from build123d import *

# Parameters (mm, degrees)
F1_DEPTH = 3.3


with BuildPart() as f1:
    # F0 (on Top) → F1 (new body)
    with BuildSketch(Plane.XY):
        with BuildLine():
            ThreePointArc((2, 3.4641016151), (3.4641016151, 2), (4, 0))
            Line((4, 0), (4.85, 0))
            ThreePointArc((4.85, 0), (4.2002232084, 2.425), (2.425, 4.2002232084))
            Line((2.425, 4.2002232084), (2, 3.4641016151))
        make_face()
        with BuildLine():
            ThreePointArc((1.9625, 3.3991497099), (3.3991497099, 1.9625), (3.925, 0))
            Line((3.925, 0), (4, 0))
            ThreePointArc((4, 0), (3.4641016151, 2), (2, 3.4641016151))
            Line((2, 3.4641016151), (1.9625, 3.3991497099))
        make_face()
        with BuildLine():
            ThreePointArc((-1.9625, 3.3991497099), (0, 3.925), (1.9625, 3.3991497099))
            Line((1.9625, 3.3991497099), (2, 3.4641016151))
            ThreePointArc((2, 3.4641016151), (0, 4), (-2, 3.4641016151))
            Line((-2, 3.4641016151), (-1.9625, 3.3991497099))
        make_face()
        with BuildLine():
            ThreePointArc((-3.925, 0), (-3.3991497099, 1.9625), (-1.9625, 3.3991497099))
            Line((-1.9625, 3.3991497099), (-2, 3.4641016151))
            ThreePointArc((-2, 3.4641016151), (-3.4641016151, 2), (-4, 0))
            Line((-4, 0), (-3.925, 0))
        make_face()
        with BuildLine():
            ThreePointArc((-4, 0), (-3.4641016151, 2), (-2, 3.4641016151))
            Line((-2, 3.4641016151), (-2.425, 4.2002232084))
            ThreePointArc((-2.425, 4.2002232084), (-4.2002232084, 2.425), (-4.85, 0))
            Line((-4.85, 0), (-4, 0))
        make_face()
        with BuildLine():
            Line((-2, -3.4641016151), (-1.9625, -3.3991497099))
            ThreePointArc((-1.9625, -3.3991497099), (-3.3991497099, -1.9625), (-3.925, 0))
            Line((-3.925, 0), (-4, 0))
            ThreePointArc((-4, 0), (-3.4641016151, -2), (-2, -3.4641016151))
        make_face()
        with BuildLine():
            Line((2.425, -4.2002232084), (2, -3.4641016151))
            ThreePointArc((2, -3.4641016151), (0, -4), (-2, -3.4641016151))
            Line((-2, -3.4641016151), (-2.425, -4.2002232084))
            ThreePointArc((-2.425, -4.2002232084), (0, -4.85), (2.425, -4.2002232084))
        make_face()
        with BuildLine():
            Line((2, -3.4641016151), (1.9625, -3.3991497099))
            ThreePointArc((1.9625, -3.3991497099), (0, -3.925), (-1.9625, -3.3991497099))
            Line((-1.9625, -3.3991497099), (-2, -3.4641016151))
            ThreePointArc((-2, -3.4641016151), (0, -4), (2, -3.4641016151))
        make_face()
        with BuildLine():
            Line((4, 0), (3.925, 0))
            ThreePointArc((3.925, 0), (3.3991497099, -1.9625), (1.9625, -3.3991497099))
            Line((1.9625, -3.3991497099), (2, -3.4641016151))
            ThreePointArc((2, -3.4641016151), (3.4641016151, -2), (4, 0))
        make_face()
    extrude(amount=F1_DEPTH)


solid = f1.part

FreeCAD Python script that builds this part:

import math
import FreeCAD as App
import Part
import Sketcher
from FreeCAD import Vector
Q = App.Units.Quantity

doc = App.newDocument("Part")
body = doc.addObject("PartDesign::Body", "Body")

sketch1 = body.newObject("Sketcher::SketchObject", "Sketch")
sketch1.AttachmentSupport = (doc.getObject("XY_Plane"), [""])
sketch1.MapMode = "FlatFace"
sketch1.addGeometry(Part.ArcOfCircle(Part.Circle(Vector(0, 0, 0), Vector(0, 0, 1), 4.85), math.radians(0), math.radians(60)), False)
sketch1.addGeometry(Part.LineSegment(Vector(2.425, 4.200223, 0), Vector(2, 3.464102, 0)), False)
sketch1.addGeometry(Part.ArcOfCircle(Part.Circle(Vector(0, 0, 0), Vector(0, 0, 1), 4), math.radians(60), math.radians(120)), False)
sketch1.addGeometry(Part.LineSegment(Vector(-2, 3.464102, 0), Vector(-2.425, 4.200223, 0)), False)
sketch1.addGeometry(Part.ArcOfCircle(Part.Circle(Vector(0, 0, 0), Vector(0, 0, 1), 4.85), math.radians(120), math.radians(180)), False)
sketch1.addGeometry(Part.LineSegment(Vector(-4.85, 0, 0), Vector(-4, 0, 0)), False)
sketch1.addGeometry(Part.ArcOfCircle(Part.Circle(Vector(0, 0, 0), Vector(0, 0, 1), 4), math.radians(180), math.radians(240)), False)
sketch1.addGeometry(Part.LineSegment(Vector(-2, -3.464102, 0), Vector(-2.425, -4.200223, 0)), False)
sketch1.addGeometry(Part.ArcOfCircle(Part.Circle(Vector(0, 0, 0), Vector(0, 0, 1), 4.85), math.radians(-120), math.radians(-60)), False)
sketch1.addGeometry(Part.LineSegment(Vector(2.425, -4.200223, 0), Vector(2, -3.464102, 0)), False)
sketch1.addGeometry(Part.ArcOfCircle(Part.Circle(Vector(0, 0, 0), Vector(0, 0, 1), 4), math.radians(-60), math.radians(0)), False)
sketch1.addGeometry(Part.LineSegment(Vector(4, 0, 0), Vector(4.85, 0, 0)), False)
sketch1.addGeometry(Part.ArcOfCircle(Part.Circle(Vector(0, 0, 0), Vector(0, 0, 1), 3.925), math.radians(-120), math.radians(-60)), False)
sketch1.addGeometry(Part.ArcOfCircle(Part.Circle(Vector(0, 0, 0), Vector(0, 0, 1), 3.925), math.radians(180), math.radians(240)), False)
sketch1.addGeometry(Part.ArcOfCircle(Part.Circle(Vector(0, 0, 0), Vector(0, 0, 1), 3.925), math.radians(120), math.radians(180)), False)
sketch1.addGeometry(Part.ArcOfCircle(Part.Circle(Vector(0, 0, 0), Vector(0, 0, 1), 3.925), math.radians(60), math.radians(120)), False)
sketch1.addGeometry(Part.ArcOfCircle(Part.Circle(Vector(0, 0, 0), Vector(0, 0, 1), 3.925), math.radians(0), math.radians(60)), False)
sketch1.addGeometry(Part.ArcOfCircle(Part.Circle(Vector(0, 0, 0), Vector(0, 0, 1), 3.925), math.radians(-60), math.radians(0)), False)
sketch1.addConstraint(Sketcher.Constraint("Coincident", 0, 2, 1, 1))
sketch1.addConstraint(Sketcher.Constraint("Coincident", 1, 2, 2, 1))
sketch1.addConstraint(Sketcher.Constraint("Coincident", 2, 2, 3, 1))
sketch1.addConstraint(Sketcher.Constraint("Coincident", 3, 2, 4, 1))
sketch1.addConstraint(Sketcher.Constraint("Coincident", 4, 2, 5, 1))
sketch1.addConstraint(Sketcher.Constraint("Coincident", 5, 2, 6, 1))
sketch1.addConstraint(Sketcher.Constraint("Coincident", 6, 2, 7, 1))
sketch1.addConstraint(Sketcher.Constraint("Coincident", 7, 2, 8, 1))
sketch1.addConstraint(Sketcher.Constraint("Coincident", 8, 2, 9, 1))
sketch1.addConstraint(Sketcher.Constraint("Coincident", 9, 2, 10, 1))
sketch1.addConstraint(Sketcher.Constraint("Coincident", 10, 2, 11, 1))
sketch1.addConstraint(Sketcher.Constraint("Coincident", 11, 2, 0, 1))
sketch1.addConstraint(Sketcher.Constraint("Tangent", 12, 1, 13, 2))
sketch1.addConstraint(Sketcher.Constraint("Tangent", 13, 1, 14, 2))
sketch1.addConstraint(Sketcher.Constraint("Tangent", 14, 1, 15, 2))
sketch1.addConstraint(Sketcher.Constraint("Tangent", 15, 1, 16, 2))
sketch1.addConstraint(Sketcher.Constraint("Tangent", 16, 1, 17, 2))
sketch1.addConstraint(Sketcher.Constraint("Tangent", 17, 1, 12, 2))
sketch1.addConstraint(Sketcher.Constraint("Horizontal", 5))
sketch1.addConstraint(Sketcher.Constraint("Horizontal", 11))
sketch1.addConstraint(Sketcher.Constraint("Coincident", 0, 3, -1, 1))
sketch1.addConstraint(Sketcher.Constraint("Coincident", 2, 3, -1, 1))
sketch1.addConstraint(Sketcher.Constraint("Coincident", 4, 3, -1, 1))
sketch1.addConstraint(Sketcher.Constraint("Coincident", 6, 3, -1, 1))
sketch1.addConstraint(Sketcher.Constraint("Coincident", 8, 3, -1, 1))
sketch1.addConstraint(Sketcher.Constraint("Coincident", 10, 3, -1, 1))
sketch1.addConstraint(Sketcher.Constraint("Coincident", 12, 3, -1, 1))
sketch1.addConstraint(Sketcher.Constraint("Coincident", 14, 3, -1, 1))
sketch1.addConstraint(Sketcher.Constraint("Equal", 0, 4))
sketch1.addConstraint(Sketcher.Constraint("Equal", 2, 6))
sketch1.addConstraint(Sketcher.Constraint("Equal", 4, 8))
sketch1.addConstraint(Sketcher.Constraint("Equal", 6, 10))
sketch1.addConstraint(Sketcher.Constraint("Equal", 14, 15))
sketch1.addConstraint(Sketcher.Constraint("PointOnObject", 4, 2, -1))
sketch1.addConstraint(Sketcher.Constraint("PointOnObject", 10, 2, -1))
sketch1.addConstraint(Sketcher.Constraint("PointOnObject", 13, 1, -1))
sketch1.addConstraint(Sketcher.Constraint("PointOnObject", 16, 1, -1))
sketch1.addConstraint(Sketcher.Constraint("Parallel", 1, 7))
sketch1.addConstraint(Sketcher.Constraint("Parallel", 3, 9))
sketch1.addConstraint(Sketcher.Constraint("Horizontal", 1, 2, 2, 2))
sketch1.addConstraint(Sketcher.Constraint("Horizontal", 0, 2, 3, 2))
sketch1.addConstraint(Sketcher.Constraint("Horizontal", 7, 2, 8, 2))
sketch1.addConstraint(Sketcher.Constraint("Horizontal", 14, 1, 15, 1))
sketch1.addConstraint(Sketcher.Constraint("Horizontal", 12, 1, 17, 1))
sketch1.addConstraint(Sketcher.Constraint("Vertical", 2, 2, 6, 2))
sketch1.addConstraint(Sketcher.Constraint("Vertical", 12, 1, 14, 1))
sketch1.addConstraint(Sketcher.Constraint("Radius", 2, Q("4 mm")))
sketch1.addConstraint(Sketcher.Constraint("Angle", 1, Q("-120 deg")))
sketch1.addConstraint(Sketcher.Constraint("Radius", 0, Q("4.85 mm")))
sketch1.addConstraint(Sketcher.Constraint("DistanceX", -1, 1, 1, 2, Q("2 mm")))
sketch1.addConstraint(Sketcher.Constraint("Radius", 12, Q("3.925 mm")))
sketch1.addConstraint(Sketcher.Constraint("DistanceX", 14, 1, 15, 1, Q("3.925 mm")))
pad1 = body.newObject("PartDesign::Pad", "Pad")
pad1.Profile = sketch1
pad1.Length = 3.3

doc.recompute()
